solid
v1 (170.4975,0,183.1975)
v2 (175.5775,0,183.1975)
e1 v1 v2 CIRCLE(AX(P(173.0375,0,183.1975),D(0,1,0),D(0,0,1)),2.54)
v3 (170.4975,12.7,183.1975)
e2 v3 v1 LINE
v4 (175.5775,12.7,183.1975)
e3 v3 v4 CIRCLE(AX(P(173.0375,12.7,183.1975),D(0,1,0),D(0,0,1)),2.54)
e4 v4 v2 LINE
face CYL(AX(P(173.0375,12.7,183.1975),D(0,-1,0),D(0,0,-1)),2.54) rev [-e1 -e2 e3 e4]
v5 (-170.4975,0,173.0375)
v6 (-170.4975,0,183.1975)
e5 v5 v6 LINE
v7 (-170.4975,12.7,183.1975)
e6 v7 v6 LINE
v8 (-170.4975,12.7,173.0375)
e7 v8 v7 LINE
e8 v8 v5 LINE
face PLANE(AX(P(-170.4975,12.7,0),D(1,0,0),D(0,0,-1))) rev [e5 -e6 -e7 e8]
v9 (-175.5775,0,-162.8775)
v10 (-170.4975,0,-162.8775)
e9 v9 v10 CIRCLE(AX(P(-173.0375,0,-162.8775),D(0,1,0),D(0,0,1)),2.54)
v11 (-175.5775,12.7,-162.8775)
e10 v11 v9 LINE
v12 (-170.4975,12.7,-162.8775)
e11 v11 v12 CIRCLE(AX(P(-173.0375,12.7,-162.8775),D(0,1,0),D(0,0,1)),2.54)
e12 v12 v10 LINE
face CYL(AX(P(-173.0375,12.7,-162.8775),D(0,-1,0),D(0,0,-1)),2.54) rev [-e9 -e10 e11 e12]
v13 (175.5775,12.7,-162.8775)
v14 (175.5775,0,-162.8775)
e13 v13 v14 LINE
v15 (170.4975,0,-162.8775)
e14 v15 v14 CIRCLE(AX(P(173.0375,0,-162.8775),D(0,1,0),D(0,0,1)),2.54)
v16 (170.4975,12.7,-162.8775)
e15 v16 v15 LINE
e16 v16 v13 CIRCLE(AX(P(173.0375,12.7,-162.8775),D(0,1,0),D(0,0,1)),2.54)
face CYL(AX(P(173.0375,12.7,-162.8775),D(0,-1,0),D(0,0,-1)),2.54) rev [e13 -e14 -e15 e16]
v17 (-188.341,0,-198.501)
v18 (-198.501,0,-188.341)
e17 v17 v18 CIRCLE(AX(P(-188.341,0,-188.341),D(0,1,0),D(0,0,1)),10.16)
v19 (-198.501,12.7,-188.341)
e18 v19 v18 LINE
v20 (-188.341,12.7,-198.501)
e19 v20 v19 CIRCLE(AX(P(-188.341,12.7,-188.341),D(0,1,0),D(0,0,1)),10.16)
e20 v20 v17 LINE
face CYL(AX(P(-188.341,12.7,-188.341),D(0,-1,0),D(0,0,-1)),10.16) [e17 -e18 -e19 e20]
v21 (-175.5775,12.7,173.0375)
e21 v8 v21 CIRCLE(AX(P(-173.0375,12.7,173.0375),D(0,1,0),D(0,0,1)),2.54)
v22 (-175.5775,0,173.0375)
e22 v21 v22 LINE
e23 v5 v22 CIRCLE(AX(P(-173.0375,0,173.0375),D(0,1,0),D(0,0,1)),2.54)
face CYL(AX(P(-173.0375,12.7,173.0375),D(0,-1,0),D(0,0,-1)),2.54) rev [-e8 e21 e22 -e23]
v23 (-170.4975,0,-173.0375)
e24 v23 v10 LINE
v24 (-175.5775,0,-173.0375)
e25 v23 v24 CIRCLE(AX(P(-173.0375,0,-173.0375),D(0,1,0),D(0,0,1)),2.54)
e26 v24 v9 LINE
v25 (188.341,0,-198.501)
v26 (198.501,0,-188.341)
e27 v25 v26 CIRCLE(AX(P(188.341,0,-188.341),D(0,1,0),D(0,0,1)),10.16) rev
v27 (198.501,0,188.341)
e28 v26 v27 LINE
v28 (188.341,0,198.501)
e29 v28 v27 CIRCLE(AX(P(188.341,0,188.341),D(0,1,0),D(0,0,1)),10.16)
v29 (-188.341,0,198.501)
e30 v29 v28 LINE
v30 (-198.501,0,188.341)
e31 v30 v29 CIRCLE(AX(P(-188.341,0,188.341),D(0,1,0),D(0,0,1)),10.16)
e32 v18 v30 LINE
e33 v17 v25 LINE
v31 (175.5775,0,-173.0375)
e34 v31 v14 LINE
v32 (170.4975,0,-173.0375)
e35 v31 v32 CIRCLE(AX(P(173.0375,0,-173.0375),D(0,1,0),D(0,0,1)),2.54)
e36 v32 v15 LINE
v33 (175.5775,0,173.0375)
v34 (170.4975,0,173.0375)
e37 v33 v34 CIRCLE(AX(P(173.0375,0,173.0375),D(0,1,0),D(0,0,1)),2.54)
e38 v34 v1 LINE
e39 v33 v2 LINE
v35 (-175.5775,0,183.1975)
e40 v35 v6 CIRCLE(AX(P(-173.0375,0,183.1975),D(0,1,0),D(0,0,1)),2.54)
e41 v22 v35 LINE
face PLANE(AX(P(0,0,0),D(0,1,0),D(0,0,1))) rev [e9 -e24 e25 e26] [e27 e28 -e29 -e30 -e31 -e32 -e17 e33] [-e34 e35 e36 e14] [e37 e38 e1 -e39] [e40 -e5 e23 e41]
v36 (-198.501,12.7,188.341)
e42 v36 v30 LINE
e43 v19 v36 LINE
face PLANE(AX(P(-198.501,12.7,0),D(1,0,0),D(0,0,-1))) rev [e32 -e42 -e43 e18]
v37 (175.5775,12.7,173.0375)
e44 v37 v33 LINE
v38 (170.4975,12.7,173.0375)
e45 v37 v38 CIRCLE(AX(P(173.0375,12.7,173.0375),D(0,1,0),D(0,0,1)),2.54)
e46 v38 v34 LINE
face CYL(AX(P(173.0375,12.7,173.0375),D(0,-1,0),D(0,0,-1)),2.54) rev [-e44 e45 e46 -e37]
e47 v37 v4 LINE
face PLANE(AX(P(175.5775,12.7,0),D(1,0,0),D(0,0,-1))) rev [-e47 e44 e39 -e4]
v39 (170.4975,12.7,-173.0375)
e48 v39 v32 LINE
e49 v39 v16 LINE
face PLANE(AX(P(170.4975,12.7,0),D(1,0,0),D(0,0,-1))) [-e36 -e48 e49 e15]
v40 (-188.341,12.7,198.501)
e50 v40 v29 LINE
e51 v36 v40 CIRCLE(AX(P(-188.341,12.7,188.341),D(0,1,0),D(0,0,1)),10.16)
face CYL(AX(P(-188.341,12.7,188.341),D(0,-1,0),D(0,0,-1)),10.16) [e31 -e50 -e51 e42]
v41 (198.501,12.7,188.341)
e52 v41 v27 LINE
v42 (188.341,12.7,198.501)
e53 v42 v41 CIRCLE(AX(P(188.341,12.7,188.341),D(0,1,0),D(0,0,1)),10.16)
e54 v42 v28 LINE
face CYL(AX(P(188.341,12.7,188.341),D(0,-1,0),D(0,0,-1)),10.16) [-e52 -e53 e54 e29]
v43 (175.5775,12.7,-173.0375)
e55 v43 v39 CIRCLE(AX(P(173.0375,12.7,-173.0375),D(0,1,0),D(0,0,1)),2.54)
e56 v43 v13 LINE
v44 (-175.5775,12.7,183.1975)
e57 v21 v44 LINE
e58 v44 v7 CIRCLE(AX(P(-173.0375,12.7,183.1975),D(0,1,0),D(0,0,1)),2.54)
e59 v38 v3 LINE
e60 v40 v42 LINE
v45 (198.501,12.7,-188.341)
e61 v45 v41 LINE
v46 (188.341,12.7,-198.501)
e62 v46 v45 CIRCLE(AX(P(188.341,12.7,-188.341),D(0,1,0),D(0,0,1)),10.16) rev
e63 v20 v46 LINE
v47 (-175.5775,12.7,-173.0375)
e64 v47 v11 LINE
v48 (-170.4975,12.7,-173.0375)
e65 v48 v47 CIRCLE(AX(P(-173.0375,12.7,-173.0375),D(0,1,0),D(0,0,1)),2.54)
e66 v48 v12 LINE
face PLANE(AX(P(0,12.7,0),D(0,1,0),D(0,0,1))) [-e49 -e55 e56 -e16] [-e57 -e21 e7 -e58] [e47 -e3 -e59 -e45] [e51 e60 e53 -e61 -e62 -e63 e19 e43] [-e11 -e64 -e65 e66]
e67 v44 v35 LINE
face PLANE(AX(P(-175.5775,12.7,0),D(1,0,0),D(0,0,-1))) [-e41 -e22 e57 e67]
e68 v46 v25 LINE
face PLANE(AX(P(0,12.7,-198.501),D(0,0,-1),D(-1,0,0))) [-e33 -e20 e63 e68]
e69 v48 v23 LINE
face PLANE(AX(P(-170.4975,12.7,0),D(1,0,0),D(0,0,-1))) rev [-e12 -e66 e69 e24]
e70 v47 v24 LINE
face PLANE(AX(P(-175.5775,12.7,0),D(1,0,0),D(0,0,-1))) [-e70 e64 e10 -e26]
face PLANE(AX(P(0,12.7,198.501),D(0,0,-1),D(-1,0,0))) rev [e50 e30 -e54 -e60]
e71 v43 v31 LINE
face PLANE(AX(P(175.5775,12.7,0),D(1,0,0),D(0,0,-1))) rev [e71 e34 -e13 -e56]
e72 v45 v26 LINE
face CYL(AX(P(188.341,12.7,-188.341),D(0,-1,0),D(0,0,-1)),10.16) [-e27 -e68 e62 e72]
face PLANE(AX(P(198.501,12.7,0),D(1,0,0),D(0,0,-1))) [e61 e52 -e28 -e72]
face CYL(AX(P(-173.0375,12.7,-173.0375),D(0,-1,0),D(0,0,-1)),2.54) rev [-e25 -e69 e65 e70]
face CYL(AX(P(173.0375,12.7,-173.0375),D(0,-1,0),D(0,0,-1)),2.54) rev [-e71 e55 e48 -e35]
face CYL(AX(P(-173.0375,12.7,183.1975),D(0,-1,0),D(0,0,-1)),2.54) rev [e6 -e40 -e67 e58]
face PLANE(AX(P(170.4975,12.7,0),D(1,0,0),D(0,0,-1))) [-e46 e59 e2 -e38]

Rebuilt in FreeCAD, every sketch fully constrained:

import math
import FreeCAD as App
import Part
import Sketcher
Q = App.Units.Quantity

doc = App.newDocument("Part")
params = doc.addObject("Spreadsheet::Sheet", "Params")
for row, (alias, value) in enumerate([
    ("sketch1_radius", "0.4 in"),
    ("sketch1_radius2", "0.1 in"),
    ("sketch1_height", "0.4 in"),
    ("sketch1_width", "14.83 in"),
    ("pad1_length", "0.5 in"),
], start=1):
    params.set(f"A{row}", alias)
    params.set(f"B{row}", "=" + value)
    params.setAlias(f"B{row}", alias)

body = doc.addObject("PartDesign::Body", "Body")

sketch1 = body.newObject("Sketcher::SketchObject", "Sketch")
sketch1.AttachmentSupport = (doc.getObject("XZ_Plane"), [""])
sketch1.MapMode = "FlatFace"
sketch1.addGeometry(Part.LineSegment(App.Vector(188.3, -198.5, 0), App.Vector(-188.3, -198.5, 0)), False)
sketch1.addGeometry(Part.ArcOfCircle(Part.Circle(App.Vector(-188.3, -188.3, 0), App.Vector(0, 0, 1), 10.2), math.radians(180), math.radians(270)), False)
sketch1.addGeometry(Part.LineSegment(App.Vector(-198.5, -188.3, 0), App.Vector(-198.5, 188.3, 0)), False)
sketch1.addGeometry(Part.ArcOfCircle(Part.Circle(App.Vector(-188.3, 188.3, 0), App.Vector(0, 0, 1), 10.2), math.radians(90), math.radians(180)), False)
sketch1.addGeometry(Part.LineSegment(App.Vector(-188.3, 198.5, 0), App.Vector(188.3, 198.5, 0)), False)
sketch1.addGeometry(Part.ArcOfCircle(Part.Circle(App.Vector(188.3, 188.3, 0), App.Vector(0, 0, 1), 10.2), math.radians(0), math.radians(90)), False)
sketch1.addGeometry(Part.LineSegment(App.Vector(198.5, 188.3, 0), App.Vector(198.5, -188.3, 0)), False)
sketch1.addGeometry(Part.ArcOfCircle(Part.Circle(App.Vector(188.3, -188.3, 0), App.Vector(0, 0, 1), 10.2), math.radians(-90), math.radians(0)), False)
sketch1.addGeometry(Part.LineSegment(App.Vector(175.6, 173, 0), App.Vector(175.6, 183.2, 0)), False)
sketch1.addGeometry(Part.ArcOfCircle(Part.Circle(App.Vector(173, 183.2, 0), App.Vector(0, 0, 1), 2.5), math.radians(0), math.radians(180)), False)
sketch1.addGeometry(Part.LineSegment(App.Vector(170.5, 183.2, 0), App.Vector(170.5, 173, 0)), False)
sketch1.addGeometry(Part.ArcOfCircle(Part.Circle(App.Vector(173, 173, 0), App.Vector(0, 0, 1), 2.5), math.radians(180), math.radians(360)), False)
sketch1.addGeometry(Part.LineSegment(App.Vector(-170.5, 173, 0), App.Vector(-170.5, 183.2, 0)), False)
sketch1.addGeometry(Part.ArcOfCircle(Part.Circle(App.Vector(-173, 183.2, 0), App.Vector(0, 0, 1), 2.5), math.radians(0), math.radians(180)), False)
sketch1.addGeometry(Part.LineSegment(App.Vector(-175.6, 183.2, 0), App.Vector(-175.6, 173, 0)), False)
sketch1.addGeometry(Part.ArcOfCircle(Part.Circle(App.Vector(-173, 173, 0), App.Vector(0, 0, 1), 2.5), math.radians(180), math.radians(360)), False)
sketch1.addGeometry(Part.LineSegment(App.Vector(175.6, -173, 0), App.Vector(175.6, -162.9, 0)), False)
sketch1.addGeometry(Part.ArcOfCircle(Part.Circle(App.Vector(173, -162.9, 0), App.Vector(0, 0, 1), 2.5), math.radians(0), math.radians(180)), False)
sketch1.addGeometry(Part.LineSegment(App.Vector(170.5, -162.9, 0), App.Vector(170.5, -173, 0)), False)
sketch1.addGeometry(Part.ArcOfCircle(Part.Circle(App.Vector(173, -173, 0), App.Vector(0, 0, 1), 2.5), math.radians(180), math.radians(360)), False)
sketch1.addGeometry(Part.LineSegment(App.Vector(-170.5, -173, 0), App.Vector(-170.5, -162.9, 0)), False)
sketch1.addGeometry(Part.ArcOfCircle(Part.Circle(App.Vector(-173, -162.9, 0), App.Vector(0, 0, 1), 2.5), math.radians(0), math.radians(180)), False)
sketch1.addGeometry(Part.LineSegment(App.Vector(-175.6, -162.9, 0), App.Vector(-175.6, -173, 0)), False)
sketch1.addGeometry(Part.ArcOfCircle(Part.Circle(App.Vector(-173, -173, 0), App.Vector(0, 0, 1), 2.5), math.radians(180), math.radians(360)), False)
sketch1.addConstraint(Sketcher.Constraint("Tangent", 0, 2, 1, 2))
sketch1.addConstraint(Sketcher.Constraint("Tangent", 1, 1, 2, 1))
sketch1.addConstraint(Sketcher.Constraint("Tangent", 2, 2, 3, 2))
sketch1.addConstraint(Sketcher.Constraint("Tangent", 3, 1, 4, 1))
sketch1.addConstraint(Sketcher.Constraint("Tangent", 4, 2, 5, 2))
sketch1.addConstraint(Sketcher.Constraint("Tangent", 5, 1, 6, 1))
sketch1.addConstraint(Sketcher.Constraint("Tangent", 6, 2, 7, 2))
sketch1.addConstraint(Sketcher.Constraint("Tangent", 7, 1, 0, 1))
sketch1.addConstraint(Sketcher.Constraint("Tangent", 8, 2, 9, 1))
sketch1.addConstraint(Sketcher.Constraint("Tangent", 9, 2, 10, 1))
sketch1.addConstraint(Sketcher.Constraint("Tangent", 10, 2, 11, 1))
sketch1.addConstraint(Sketcher.Constraint("Tangent", 11, 2, 8, 1))
sketch1.addConstraint(Sketcher.Constraint("Tangent", 12, 2, 13, 1))
sketch1.addConstraint(Sketcher.Constraint("Tangent", 13, 2, 14, 1))
sketch1.addConstraint(Sketcher.Constraint("Tangent", 14, 2, 15, 1))
sketch1.addConstraint(Sketcher.Constraint("Tangent", 15, 2, 12, 1))
sketch1.addConstraint(Sketcher.Constraint("Tangent", 16, 2, 17, 1))
sketch1.addConstraint(Sketcher.Constraint("Tangent", 17, 2, 18, 1))
sketch1.addConstraint(Sketcher.Constraint("Tangent", 18, 2, 19, 1))
sketch1.addConstraint(Sketcher.Constraint("Tangent", 19, 2, 16, 1))
sketch1.addConstraint(Sketcher.Constraint("Tangent", 20, 2, 21, 1))
sketch1.addConstraint(Sketcher.Constraint("Tangent", 21, 2, 22, 1))
sketch1.addConstraint(Sketcher.Constraint("Tangent", 22, 2, 23, 1))
sketch1.addConstraint(Sketcher.Constraint("Tangent", 23, 2, 20, 1))
sketch1.addConstraint(Sketcher.Constraint("Horizontal", 0))
sketch1.addConstraint(Sketcher.Constraint("Vertical", 2))
sketch1.addConstraint(Sketcher.Constraint("Horizontal", 4))
sketch1.addConstraint(Sketcher.Constraint("Vertical", 6))
sketch1.addConstraint(Sketcher.Constraint("Vertical", 8))
sketch1.addConstraint(Sketcher.Constraint("Vertical", 10))
sketch1.addConstraint(Sketcher.Constraint("Vertical", 12))
sketch1.addConstraint(Sketcher.Constraint("Vertical", 14))
sketch1.addConstraint(Sketcher.Constraint("Vertical", 16))
sketch1.addConstraint(Sketcher.Constraint("Vertical", 18))
sketch1.addConstraint(Sketcher.Constraint("Vertical", 20))
sketch1.addConstraint(Sketcher.Constraint("Vertical", 22))
sketch1.addConstraint(Sketcher.Constraint("Equal", 1, 3))
sketch1.addConstraint(Sketcher.Constraint("Equal", 3, 5))
sketch1.addConstraint(Sketcher.Constraint("Equal", 5, 7))
sketch1.addConstraint(Sketcher.Constraint("Equal", 11, 13))
sketch1.addConstraint(Sketcher.Constraint("Equal", 15, 17))
sketch1.addConstraint(Sketcher.Constraint("Equal", 19, 21))
sketch1.addConstraint(Sketcher.Constraint("Symmetric", 1, 3, 5, 3, -1, 1))
sketch1.addConstraint(Sketcher.Constraint("Symmetric", 15, 3, 19, 3, -1, 1))
sketch1.addConstraint(Sketcher.Constraint("Symmetric", 11, 3, 23, 3, -1, 1))
sketch1.addConstraint(Sketcher.Constraint("Symmetric", 9, 3, 13, 3, -2))
sketch1.addConstraint(Sketcher.Constraint("Horizontal", 11, 3, 15, 3))
sketch1.addConstraint(Sketcher.Constraint("Horizontal", 17, 3, 21, 3))
sketch1.addConstraint(Sketcher.Constraint("Equal", 4, 2))
sketch1.addConstraint(Sketcher.Constraint("Equal", 14, 16))
sketch1.addConstraint(Sketcher.Constraint("Radius", 1, Q("0.4 in")))
sketch1.addConstraint(Sketcher.Constraint("Radius", 9, Q("0.1 in")))
sketch1.addConstraint(Sketcher.Constraint("DistanceY", 8, 1, 8, 2, Q("0.4 in")))
sketch1.addConstraint(Sketcher.Constraint("DistanceX", 0, 2, 0, 1, Q("14.83 in")))
sketch1.addConstraint(Sketcher.Constraint("DistanceX", -1, 1, 9, 3, Q("6.8125 in")))
sketch1.addConstraint(Sketcher.Constraint("DistanceY", -1, 1, 11, 3, Q("6.8125 in")))
sketch1.setExpression("Constraints[50]", "Params.sketch1_radius")
sketch1.setExpression("Constraints[51]", "Params.sketch1_radius2")
sketch1.setExpression("Constraints[52]", "Params.sketch1_height")
sketch1.setExpression("Constraints[53]", "Params.sketch1_width")
pad1 = body.newObject("PartDesign::Pad", "Pad")
pad1.Profile = sketch1
pad1.setExpression("Length", "Params.pad1_length")
pad1.Reversed = True

doc.recompute()
